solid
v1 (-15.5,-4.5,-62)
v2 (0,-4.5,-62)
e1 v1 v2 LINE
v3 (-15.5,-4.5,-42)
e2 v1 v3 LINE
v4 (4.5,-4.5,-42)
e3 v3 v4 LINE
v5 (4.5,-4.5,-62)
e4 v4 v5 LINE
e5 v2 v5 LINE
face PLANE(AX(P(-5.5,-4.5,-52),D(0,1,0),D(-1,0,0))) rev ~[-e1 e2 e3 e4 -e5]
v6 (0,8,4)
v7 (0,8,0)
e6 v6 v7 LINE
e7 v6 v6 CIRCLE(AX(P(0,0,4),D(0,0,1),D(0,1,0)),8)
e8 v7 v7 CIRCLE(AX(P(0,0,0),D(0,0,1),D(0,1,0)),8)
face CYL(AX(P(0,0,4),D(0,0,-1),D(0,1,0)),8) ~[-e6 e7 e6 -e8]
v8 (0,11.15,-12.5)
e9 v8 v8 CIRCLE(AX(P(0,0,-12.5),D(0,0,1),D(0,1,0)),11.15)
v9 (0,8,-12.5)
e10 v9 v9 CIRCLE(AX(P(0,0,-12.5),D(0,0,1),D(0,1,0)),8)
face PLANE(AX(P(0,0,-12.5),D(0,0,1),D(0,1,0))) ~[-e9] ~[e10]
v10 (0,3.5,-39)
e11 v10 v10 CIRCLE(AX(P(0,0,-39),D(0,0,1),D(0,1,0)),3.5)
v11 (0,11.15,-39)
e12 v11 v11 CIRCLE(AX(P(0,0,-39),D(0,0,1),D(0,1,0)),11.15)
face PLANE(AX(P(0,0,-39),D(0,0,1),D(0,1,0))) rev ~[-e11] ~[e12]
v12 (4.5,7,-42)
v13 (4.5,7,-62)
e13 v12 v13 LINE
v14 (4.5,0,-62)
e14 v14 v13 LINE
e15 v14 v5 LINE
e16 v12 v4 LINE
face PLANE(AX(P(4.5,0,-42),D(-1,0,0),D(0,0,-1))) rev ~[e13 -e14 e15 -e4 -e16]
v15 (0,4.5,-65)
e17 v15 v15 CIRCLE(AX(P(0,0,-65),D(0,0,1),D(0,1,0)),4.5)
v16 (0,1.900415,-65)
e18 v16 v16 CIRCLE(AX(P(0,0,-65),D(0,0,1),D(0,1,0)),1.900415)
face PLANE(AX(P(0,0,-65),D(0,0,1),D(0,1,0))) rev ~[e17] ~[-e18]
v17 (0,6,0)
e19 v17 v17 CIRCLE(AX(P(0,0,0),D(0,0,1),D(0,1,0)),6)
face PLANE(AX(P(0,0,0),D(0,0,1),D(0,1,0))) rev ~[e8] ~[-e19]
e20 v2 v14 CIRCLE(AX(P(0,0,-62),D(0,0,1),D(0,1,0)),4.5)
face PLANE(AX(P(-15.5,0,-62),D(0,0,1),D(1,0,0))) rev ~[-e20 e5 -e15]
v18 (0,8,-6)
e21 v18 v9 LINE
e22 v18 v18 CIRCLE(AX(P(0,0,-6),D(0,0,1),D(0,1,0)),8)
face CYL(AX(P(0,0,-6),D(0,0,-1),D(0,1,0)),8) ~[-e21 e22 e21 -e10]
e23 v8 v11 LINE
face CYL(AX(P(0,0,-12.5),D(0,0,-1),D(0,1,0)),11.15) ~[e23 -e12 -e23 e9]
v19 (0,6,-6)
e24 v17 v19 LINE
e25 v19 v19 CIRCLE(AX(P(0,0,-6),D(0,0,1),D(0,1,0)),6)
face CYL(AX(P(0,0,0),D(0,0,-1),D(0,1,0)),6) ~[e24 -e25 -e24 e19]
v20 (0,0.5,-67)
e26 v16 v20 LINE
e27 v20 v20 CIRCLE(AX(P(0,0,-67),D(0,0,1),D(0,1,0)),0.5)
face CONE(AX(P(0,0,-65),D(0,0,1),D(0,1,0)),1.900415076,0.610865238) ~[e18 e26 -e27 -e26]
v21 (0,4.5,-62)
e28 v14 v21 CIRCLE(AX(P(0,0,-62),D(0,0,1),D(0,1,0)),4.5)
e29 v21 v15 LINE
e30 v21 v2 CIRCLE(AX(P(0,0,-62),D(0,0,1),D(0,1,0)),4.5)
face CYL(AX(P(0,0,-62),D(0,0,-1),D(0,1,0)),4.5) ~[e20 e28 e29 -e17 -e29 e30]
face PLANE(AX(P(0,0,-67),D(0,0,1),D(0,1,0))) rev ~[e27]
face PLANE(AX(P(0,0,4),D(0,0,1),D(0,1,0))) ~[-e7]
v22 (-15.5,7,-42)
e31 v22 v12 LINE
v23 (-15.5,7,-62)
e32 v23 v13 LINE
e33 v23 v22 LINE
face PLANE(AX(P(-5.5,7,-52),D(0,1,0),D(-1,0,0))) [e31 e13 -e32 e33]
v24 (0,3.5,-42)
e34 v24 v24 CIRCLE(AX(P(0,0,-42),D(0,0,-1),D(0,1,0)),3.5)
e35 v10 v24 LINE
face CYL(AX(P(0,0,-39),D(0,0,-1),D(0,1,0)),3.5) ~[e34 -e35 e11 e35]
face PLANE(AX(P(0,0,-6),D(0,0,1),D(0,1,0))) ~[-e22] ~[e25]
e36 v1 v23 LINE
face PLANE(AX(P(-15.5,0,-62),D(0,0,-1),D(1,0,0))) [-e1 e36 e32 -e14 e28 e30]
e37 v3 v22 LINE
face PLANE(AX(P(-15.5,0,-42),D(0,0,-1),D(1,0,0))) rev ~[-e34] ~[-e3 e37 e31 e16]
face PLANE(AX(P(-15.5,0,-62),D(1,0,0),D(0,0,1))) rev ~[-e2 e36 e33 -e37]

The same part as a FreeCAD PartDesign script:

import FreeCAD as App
import Part
import Sketcher
from FreeCAD import Vector
Q = App.Units.Quantity


def add_polygon(sketch, points):
    """Adds a closed chain of lines whose ends are joined by coincident constraints."""
    first, n = sketch.GeometryCount, len(points)
    for a, b in zip(points, points[1:] + points[:1]):
        sketch.addGeometry(Part.LineSegment(App.Vector(*a, 0), App.Vector(*b, 0)), False)
    for i in range(n):
        sketch.addConstraint(Sketcher.Constraint("Coincident", first + i, 2, first + (i + 1) % n, 1))

doc = App.newDocument("Part")
params = doc.addObject("Spreadsheet::Sheet", "Params")
for row, (alias, value) in enumerate([
    ("sketch1_width", "8 mm"),
    ("sketch1_width2", "1 mm"),
    ("sketch1_width3", "2 mm"),
    ("sketch1_height", "71 mm"),
    ("sketch1_height2", "3 mm"),
    ("revolution_angle", "360 deg"),
    ("sketch2_width", "20 mm"),
    ("pad1_length", "4.5 mm"),
    ("sketch3_width", "20 mm"),
    ("pad2_length", "7 mm"),
], start=1):
    params.set(f"A{row}", alias)
    params.set(f"B{row}", "=" + value)
    params.setAlias(f"B{row}", alias)

body = doc.addObject("PartDesign::Body", "Body")

# Sketch on YZ plane
sketch1 = body.newObject("Sketcher::SketchObject", "Sketch")
sketch1.AttachmentSupport = (doc.getObject("YZ_Plane"), [""])
sketch1.MapMode = "FlatFace"
add_polygon(sketch1, [(8, 4), (0, 4), (0, -67), (0.5, -67), (1.9, -65), (4.5, -65), (4.5, -62), (3.5, -62), (3.5, -39), (11.2, -39), (11.2, -12.5), (8, -12.5), (8, -6), (6, -6), (6, 0), (8, 0)])  # lines 0-15
sketch1.addConstraint(Sketcher.Constraint("Horizontal", 0))
sketch1.addConstraint(Sketcher.Constraint("Vertical", 1))
sketch1.addConstraint(Sketcher.Constraint("Horizontal", 2))
sketch1.addConstraint(Sketcher.Constraint("Horizontal", 4))
sketch1.addConstraint(Sketcher.Constraint("Vertical", 5))
sketch1.addConstraint(Sketcher.Constraint("Horizontal", 6))
sketch1.addConstraint(Sketcher.Constraint("Vertical", 7))
sketch1.addConstraint(Sketcher.Constraint("Horizontal", 8))
sketch1.addConstraint(Sketcher.Constraint("Vertical", 9))
sketch1.addConstraint(Sketcher.Constraint("Horizontal", 10))
sketch1.addConstraint(Sketcher.Constraint("Vertical", 11))
sketch1.addConstraint(Sketcher.Constraint("Horizontal", 12))
sketch1.addConstraint(Sketcher.Constraint("Vertical", 13))
sketch1.addConstraint(Sketcher.Constraint("Horizontal", 14))
sketch1.addConstraint(Sketcher.Constraint("Vertical", 15))
sketch1.addConstraint(Sketcher.Constraint("PointOnObject", 0, 2, -2))
sketch1.addConstraint(Sketcher.Constraint("PointOnObject", 13, 2, -1))
sketch1.addConstraint(Sketcher.Constraint("Vertical", 11, 2, 14, 2))
sketch1.addConstraint(Sketcher.Constraint("DistanceX", 0, 2, 0, 1, 8.0))
sketch1.addConstraint(Sketcher.Constraint("DistanceX", 6, 2, 6, 1, 1.0))
sketch1.addConstraint(Sketcher.Constraint("DistanceX", 12, 2, 12, 1, 2.0))
sketch1.addConstraint(Sketcher.Constraint("DistanceY", 1, 2, 1, 1, 71.0))
sketch1.addConstraint(Sketcher.Constraint("DistanceY", 5, 1, 5, 2, 3.0))
sketch1.addConstraint(Sketcher.Constraint("DistanceY", 7, 1, 7, 2, 23.0))
sketch1.addConstraint(Sketcher.Constraint("DistanceY", 13, 1, 13, 2, 6.0))
sketch1.addConstraint(Sketcher.Constraint("DistanceY", 15, 1, 15, 2, 4.0))
sketch1.addConstraint(Sketcher.Constraint("Angle", 3, Q("55 deg")))
sketch1.addConstraint(Sketcher.Constraint("DistanceX", 2, 1, 2, 2, 0.5))
sketch1.addConstraint(Sketcher.Constraint("DistanceY", 9, 1, 9, 2, 26.5))
sketch1.addConstraint(Sketcher.Constraint("DistanceY", 11, 1, 11, 2, 6.5))
sketch1.addConstraint(Sketcher.Constraint("DistanceX", 2, 2, 4, 2, 4.0))
sketch1.addConstraint(Sketcher.Constraint("DistanceX", 8, 1, 8, 2, 7.65))
sketch1.setExpression("Constraints[34]", "Params.sketch1_width")
sketch1.setExpression("Constraints[35]", "Params.sketch1_width2")
sketch1.setExpression("Constraints[36]", "Params.sketch1_width3")
sketch1.setExpression("Constraints[37]", "Params.sketch1_height")
sketch1.setExpression("Constraints[38]", "Params.sketch1_height2")
revolution = body.newObject("PartDesign::Revolution", "Revolution")
revolution.Profile = sketch1
revolution.ReferenceAxis = (sketch1, ["V_Axis"])
revolution.setExpression("Angle", "Params.revolution_angle")

# Sketch on XZ plane
sketch2 = body.newObject("Sketcher::SketchObject", "Sketch001")
sketch2.AttachmentSupport = (doc.getObject("XZ_Plane"), [""])
sketch2.MapMode = "FlatFace"
add_polygon(sketch2, [(-16, -62), (4, -62), (4, -42), (-16, -42)])  # lines 0-3
sketch2.addConstraint(Sketcher.Constraint("Horizontal", 0))
sketch2.addConstraint(Sketcher.Constraint("Vertical", 1))
sketch2.addConstraint(Sketcher.Constraint("Horizontal", 2))
sketch2.addConstraint(Sketcher.Constraint("Vertical", 3))
sketch2.addConstraint(Sketcher.Constraint("Equal", 2, 1))
sketch2.addConstraint(Sketcher.Constraint("DistanceX", 0, 1, 0, 2, 20.0))
sketch2.addConstraint(Sketcher.Constraint("DistanceY", 0, 2, -1, 1, 62.0))
sketch2.addConstraint(Sketcher.Constraint("DistanceX", -1, 1, 0, 2, 4.5))
sketch2.setExpression("Constraints[9]", "Params.sketch2_width")
pad1 = body.newObject("PartDesign::Pad", "Pad")
pad1.Profile = sketch2
pad1.setExpression("Length", "Params.pad1_length")

# Sketch on XZ plane
sketch3 = body.newObject("Sketcher::SketchObject", "Sketch002")
sketch3.AttachmentSupport = (doc.getObject("XZ_Plane"), [""])
sketch3.MapMode = "FlatFace"
add_polygon(sketch3, [(-16, -62), (4, -62), (4, -42), (-16, -42)])  # lines 0-3
sketch3.addConstraint(Sketcher.Constraint("Horizontal", 0))
sketch3.addConstraint(Sketcher.Constraint("Vertical", 1))
sketch3.addConstraint(Sketcher.Constraint("Horizontal", 2))
sketch3.addConstraint(Sketcher.Constraint("Vertical", 3))
sketch3.addConstraint(Sketcher.Constraint("Equal", 2, 1))
sketch3.addConstraint(Sketcher.Constraint("DistanceX", 0, 1, 0, 2, 20.0))
sketch3.addConstraint(Sketcher.Constraint("DistanceY", 0, 2, -1, 1, 62.0))
sketch3.addConstraint(Sketcher.Constraint("DistanceX", -1, 1, 0, 2, 4.5))
sketch3.setExpression("Constraints[9]", "Params.sketch3_width")
pad2 = body.newObject("PartDesign::Pad", "Pad001")
pad2.Profile = sketch3
pad2.setExpression("Length", "Params.pad2_length")
pad2.Reversed = True

doc.recompute()
